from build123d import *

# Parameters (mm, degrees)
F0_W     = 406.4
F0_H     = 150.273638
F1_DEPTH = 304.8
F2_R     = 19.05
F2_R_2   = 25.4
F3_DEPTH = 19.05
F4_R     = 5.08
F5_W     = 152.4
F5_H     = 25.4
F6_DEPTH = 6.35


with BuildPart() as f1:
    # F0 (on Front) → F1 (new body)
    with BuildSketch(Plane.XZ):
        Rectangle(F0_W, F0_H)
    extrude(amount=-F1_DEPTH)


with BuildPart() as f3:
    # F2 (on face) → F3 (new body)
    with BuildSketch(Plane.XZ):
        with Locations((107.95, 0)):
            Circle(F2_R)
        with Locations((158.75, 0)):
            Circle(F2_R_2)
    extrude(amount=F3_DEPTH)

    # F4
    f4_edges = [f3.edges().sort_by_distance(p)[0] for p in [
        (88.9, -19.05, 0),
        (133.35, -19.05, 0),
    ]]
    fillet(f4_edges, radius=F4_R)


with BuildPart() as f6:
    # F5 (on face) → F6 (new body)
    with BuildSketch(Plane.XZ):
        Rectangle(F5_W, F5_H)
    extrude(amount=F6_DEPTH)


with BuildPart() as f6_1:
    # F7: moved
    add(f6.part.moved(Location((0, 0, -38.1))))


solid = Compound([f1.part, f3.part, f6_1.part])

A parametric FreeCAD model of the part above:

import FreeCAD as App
import Part
import Sketcher
Q = App.Units.Quantity


def edges_at(feature, points):
    """Names of the edges that pass closest to the given points."""
    edges = feature.Shape.Edges
    near = lambda p: min(range(len(edges)), key=lambda i: edges[i].distToShape(Part.Vertex(*p))[0])
    return sorted({f"Edge{near(p) + 1}" for p in points})


def add_polygon(sketch, points):
    """Adds a closed chain of lines whose ends are joined by coincident constraints."""
    first, n = sketch.GeometryCount, len(points)
    for a, b in zip(points, points[1:] + points[:1]):
        sketch.addGeometry(Part.LineSegment(App.Vector(*a, 0), App.Vector(*b, 0)), False)
    for i in range(n):
        sketch.addConstraint(Sketcher.Constraint("Coincident", first + i, 2, first + (i + 1) % n, 1))

doc = App.newDocument("Part")
params = doc.addObject("Spreadsheet::Sheet", "Params")
for row, (alias, value) in enumerate([
    ("sketch1_width", "16 in"),
    ("pad1_length", "12 in"),
    ("sketch2_diameter", "2 in"),
    ("sketch2_diameter2", "1.5 in"),
    ("pad2_length", "0.75 in"),
    ("fillet_radius", "0.2 in"),
    ("sketch3_width", "6 in"),
    ("sketch3_height", "1 in"),
    ("pad3_length", "0.25 in"),
], start=1):
    params.set(f"A{row}", alias)
    params.set(f"B{row}", "=" + value)
    params.setAlias(f"B{row}", alias)

body = doc.addObject("PartDesign::Body", "Body")

# Sketch on XZ plane
sketch1 = body.newObject("Sketcher::SketchObject", "Sketch")
sketch1.AttachmentSupport = (doc.getObject("XZ_Plane"), [""])
sketch1.MapMode = "FlatFace"
add_polygon(sketch1, [(-203, 75), (-203, -75), (203, -75), (203, 75)])  # lines 0-3
sketch1.addConstraint(Sketcher.Constraint("Vertical", 0))
sketch1.addConstraint(Sketcher.Constraint("Horizontal", 1))
sketch1.addConstraint(Sketcher.Constraint("Vertical", 2))
sketch1.addConstraint(Sketcher.Constraint("Horizontal", 3))
sketch1.addConstraint(Sketcher.Constraint("Symmetric", 0, 2, 2, 2, -1, 1))
sketch1.addConstraint(Sketcher.Constraint("DistanceX", 1, 1, 1, 2, Q("16 in")))
sketch1.addConstraint(Sketcher.Constraint("DistanceY", 0, 2, 0, 1, 150.273638))
sketch1.setExpression("Constraints[9]", "Params.sketch1_width")
pad1 = body.newObject("PartDesign::Pad", "Pad")
pad1.Profile = sketch1
pad1.setExpression("Length", "Params.pad1_length")
pad1.Reversed = True
body2 = doc.addObject("PartDesign::Body", "Body001")
body2.AllowCompound = True

# Sketch on XZ plane
sketch2 = body2.newObject("Sketcher::SketchObject", "Sketch001")
sketch2.AttachmentSupport = (doc.getObject("XZ_Plane001"), [""])
sketch2.MapMode = "FlatFace"
sketch2.addGeometry(Part.Circle(App.Vector(108, 0, 0), App.Vector(0, 0, 1), 19), False)
sketch2.addGeometry(Part.Circle(App.Vector(159, 0, 0), App.Vector(0, 0, 1), 25), False)
sketch2.addConstraint(Sketcher.Constraint("PointOnObject", 0, 3, -1))
sketch2.addConstraint(Sketcher.Constraint("PointOnObject", 1, 3, -1))
sketch2.addConstraint(Sketcher.Constraint("Diameter", 1, Q("2 in")))
sketch2.addConstraint(Sketcher.Constraint("Diameter", 0, Q("1.5 in")))
sketch2.addConstraint(Sketcher.Constraint("DistanceX", 0, 3, 1, 3, Q("2 in")))
sketch2.addConstraint(Sketcher.Constraint("DistanceX", -1, 1, 0, 3, Q("4.25 in")))
sketch2.setExpression("Constraints[2]", "Params.sketch2_diameter")
sketch2.setExpression("Constraints[3]", "Params.sketch2_diameter2")
pad2 = body2.newObject("PartDesign::Pad", "Pad001")
pad2.Profile = sketch2
pad2.setExpression("Length", "Params.pad2_length")
doc.recompute()

fillet = body2.newObject("PartDesign::Fillet", "Fillet")
fillet.Base = (pad2, edges_at(pad2, [(88.9, -19.05, 0), (133.35, -19.05, 0)]))
fillet.setExpression("Radius", "Params.fillet_radius")
body3 = doc.addObject("PartDesign::Body", "Body002")

# Sketch on XZ plane
sketch3 = body3.newObject("Sketcher::SketchObject", "Sketch002")
sketch3.AttachmentSupport = (doc.getObject("XZ_Plane002"), [""])
sketch3.MapMode = "FlatFace"
add_polygon(sketch3, [(-76, 13), (-76, -13), (76, -13), (76, 13)])  # lines 0-3
sketch3.addConstraint(Sketcher.Constraint("Vertical", 0))
sketch3.addConstraint(Sketcher.Constraint("Horizontal", 1))
sketch3.addConstraint(Sketcher.Constraint("Vertical", 2))
sketch3.addConstraint(Sketcher.Constraint("Horizontal", 3))
sketch3.addConstraint(Sketcher.Constraint("Symmetric", 0, 2, 2, 2, -1, 1))
sketch3.addConstraint(Sketcher.Constraint("DistanceX", 1, 1, 1, 2, Q("6 in")))
sketch3.addConstraint(Sketcher.Constraint("DistanceY", 0, 2, 0, 1, Q("1 in")))
sketch3.setExpression("Constraints[9]", "Params.sketch3_width")
sketch3.setExpression("Constraints[10]", "Params.sketch3_height")
pad3 = body3.newObject("PartDesign::Pad", "Pad002")
pad3.Profile = sketch3
pad3.setExpression("Length", "Params.pad3_length")
body4 = doc.addObject("PartDesign::Body", "Body003")
doc.recompute()

body3.Placement = App.Placement(App.Vector(0, 0, -38.1), App.Rotation(App.Vector(0, 0, 1), 0))
boolean = body4.newObject("PartDesign::Boolean", "Boolean")
boolean.Type = "Fuse"
boolean.addObjects([body3])

doc.recompute()
